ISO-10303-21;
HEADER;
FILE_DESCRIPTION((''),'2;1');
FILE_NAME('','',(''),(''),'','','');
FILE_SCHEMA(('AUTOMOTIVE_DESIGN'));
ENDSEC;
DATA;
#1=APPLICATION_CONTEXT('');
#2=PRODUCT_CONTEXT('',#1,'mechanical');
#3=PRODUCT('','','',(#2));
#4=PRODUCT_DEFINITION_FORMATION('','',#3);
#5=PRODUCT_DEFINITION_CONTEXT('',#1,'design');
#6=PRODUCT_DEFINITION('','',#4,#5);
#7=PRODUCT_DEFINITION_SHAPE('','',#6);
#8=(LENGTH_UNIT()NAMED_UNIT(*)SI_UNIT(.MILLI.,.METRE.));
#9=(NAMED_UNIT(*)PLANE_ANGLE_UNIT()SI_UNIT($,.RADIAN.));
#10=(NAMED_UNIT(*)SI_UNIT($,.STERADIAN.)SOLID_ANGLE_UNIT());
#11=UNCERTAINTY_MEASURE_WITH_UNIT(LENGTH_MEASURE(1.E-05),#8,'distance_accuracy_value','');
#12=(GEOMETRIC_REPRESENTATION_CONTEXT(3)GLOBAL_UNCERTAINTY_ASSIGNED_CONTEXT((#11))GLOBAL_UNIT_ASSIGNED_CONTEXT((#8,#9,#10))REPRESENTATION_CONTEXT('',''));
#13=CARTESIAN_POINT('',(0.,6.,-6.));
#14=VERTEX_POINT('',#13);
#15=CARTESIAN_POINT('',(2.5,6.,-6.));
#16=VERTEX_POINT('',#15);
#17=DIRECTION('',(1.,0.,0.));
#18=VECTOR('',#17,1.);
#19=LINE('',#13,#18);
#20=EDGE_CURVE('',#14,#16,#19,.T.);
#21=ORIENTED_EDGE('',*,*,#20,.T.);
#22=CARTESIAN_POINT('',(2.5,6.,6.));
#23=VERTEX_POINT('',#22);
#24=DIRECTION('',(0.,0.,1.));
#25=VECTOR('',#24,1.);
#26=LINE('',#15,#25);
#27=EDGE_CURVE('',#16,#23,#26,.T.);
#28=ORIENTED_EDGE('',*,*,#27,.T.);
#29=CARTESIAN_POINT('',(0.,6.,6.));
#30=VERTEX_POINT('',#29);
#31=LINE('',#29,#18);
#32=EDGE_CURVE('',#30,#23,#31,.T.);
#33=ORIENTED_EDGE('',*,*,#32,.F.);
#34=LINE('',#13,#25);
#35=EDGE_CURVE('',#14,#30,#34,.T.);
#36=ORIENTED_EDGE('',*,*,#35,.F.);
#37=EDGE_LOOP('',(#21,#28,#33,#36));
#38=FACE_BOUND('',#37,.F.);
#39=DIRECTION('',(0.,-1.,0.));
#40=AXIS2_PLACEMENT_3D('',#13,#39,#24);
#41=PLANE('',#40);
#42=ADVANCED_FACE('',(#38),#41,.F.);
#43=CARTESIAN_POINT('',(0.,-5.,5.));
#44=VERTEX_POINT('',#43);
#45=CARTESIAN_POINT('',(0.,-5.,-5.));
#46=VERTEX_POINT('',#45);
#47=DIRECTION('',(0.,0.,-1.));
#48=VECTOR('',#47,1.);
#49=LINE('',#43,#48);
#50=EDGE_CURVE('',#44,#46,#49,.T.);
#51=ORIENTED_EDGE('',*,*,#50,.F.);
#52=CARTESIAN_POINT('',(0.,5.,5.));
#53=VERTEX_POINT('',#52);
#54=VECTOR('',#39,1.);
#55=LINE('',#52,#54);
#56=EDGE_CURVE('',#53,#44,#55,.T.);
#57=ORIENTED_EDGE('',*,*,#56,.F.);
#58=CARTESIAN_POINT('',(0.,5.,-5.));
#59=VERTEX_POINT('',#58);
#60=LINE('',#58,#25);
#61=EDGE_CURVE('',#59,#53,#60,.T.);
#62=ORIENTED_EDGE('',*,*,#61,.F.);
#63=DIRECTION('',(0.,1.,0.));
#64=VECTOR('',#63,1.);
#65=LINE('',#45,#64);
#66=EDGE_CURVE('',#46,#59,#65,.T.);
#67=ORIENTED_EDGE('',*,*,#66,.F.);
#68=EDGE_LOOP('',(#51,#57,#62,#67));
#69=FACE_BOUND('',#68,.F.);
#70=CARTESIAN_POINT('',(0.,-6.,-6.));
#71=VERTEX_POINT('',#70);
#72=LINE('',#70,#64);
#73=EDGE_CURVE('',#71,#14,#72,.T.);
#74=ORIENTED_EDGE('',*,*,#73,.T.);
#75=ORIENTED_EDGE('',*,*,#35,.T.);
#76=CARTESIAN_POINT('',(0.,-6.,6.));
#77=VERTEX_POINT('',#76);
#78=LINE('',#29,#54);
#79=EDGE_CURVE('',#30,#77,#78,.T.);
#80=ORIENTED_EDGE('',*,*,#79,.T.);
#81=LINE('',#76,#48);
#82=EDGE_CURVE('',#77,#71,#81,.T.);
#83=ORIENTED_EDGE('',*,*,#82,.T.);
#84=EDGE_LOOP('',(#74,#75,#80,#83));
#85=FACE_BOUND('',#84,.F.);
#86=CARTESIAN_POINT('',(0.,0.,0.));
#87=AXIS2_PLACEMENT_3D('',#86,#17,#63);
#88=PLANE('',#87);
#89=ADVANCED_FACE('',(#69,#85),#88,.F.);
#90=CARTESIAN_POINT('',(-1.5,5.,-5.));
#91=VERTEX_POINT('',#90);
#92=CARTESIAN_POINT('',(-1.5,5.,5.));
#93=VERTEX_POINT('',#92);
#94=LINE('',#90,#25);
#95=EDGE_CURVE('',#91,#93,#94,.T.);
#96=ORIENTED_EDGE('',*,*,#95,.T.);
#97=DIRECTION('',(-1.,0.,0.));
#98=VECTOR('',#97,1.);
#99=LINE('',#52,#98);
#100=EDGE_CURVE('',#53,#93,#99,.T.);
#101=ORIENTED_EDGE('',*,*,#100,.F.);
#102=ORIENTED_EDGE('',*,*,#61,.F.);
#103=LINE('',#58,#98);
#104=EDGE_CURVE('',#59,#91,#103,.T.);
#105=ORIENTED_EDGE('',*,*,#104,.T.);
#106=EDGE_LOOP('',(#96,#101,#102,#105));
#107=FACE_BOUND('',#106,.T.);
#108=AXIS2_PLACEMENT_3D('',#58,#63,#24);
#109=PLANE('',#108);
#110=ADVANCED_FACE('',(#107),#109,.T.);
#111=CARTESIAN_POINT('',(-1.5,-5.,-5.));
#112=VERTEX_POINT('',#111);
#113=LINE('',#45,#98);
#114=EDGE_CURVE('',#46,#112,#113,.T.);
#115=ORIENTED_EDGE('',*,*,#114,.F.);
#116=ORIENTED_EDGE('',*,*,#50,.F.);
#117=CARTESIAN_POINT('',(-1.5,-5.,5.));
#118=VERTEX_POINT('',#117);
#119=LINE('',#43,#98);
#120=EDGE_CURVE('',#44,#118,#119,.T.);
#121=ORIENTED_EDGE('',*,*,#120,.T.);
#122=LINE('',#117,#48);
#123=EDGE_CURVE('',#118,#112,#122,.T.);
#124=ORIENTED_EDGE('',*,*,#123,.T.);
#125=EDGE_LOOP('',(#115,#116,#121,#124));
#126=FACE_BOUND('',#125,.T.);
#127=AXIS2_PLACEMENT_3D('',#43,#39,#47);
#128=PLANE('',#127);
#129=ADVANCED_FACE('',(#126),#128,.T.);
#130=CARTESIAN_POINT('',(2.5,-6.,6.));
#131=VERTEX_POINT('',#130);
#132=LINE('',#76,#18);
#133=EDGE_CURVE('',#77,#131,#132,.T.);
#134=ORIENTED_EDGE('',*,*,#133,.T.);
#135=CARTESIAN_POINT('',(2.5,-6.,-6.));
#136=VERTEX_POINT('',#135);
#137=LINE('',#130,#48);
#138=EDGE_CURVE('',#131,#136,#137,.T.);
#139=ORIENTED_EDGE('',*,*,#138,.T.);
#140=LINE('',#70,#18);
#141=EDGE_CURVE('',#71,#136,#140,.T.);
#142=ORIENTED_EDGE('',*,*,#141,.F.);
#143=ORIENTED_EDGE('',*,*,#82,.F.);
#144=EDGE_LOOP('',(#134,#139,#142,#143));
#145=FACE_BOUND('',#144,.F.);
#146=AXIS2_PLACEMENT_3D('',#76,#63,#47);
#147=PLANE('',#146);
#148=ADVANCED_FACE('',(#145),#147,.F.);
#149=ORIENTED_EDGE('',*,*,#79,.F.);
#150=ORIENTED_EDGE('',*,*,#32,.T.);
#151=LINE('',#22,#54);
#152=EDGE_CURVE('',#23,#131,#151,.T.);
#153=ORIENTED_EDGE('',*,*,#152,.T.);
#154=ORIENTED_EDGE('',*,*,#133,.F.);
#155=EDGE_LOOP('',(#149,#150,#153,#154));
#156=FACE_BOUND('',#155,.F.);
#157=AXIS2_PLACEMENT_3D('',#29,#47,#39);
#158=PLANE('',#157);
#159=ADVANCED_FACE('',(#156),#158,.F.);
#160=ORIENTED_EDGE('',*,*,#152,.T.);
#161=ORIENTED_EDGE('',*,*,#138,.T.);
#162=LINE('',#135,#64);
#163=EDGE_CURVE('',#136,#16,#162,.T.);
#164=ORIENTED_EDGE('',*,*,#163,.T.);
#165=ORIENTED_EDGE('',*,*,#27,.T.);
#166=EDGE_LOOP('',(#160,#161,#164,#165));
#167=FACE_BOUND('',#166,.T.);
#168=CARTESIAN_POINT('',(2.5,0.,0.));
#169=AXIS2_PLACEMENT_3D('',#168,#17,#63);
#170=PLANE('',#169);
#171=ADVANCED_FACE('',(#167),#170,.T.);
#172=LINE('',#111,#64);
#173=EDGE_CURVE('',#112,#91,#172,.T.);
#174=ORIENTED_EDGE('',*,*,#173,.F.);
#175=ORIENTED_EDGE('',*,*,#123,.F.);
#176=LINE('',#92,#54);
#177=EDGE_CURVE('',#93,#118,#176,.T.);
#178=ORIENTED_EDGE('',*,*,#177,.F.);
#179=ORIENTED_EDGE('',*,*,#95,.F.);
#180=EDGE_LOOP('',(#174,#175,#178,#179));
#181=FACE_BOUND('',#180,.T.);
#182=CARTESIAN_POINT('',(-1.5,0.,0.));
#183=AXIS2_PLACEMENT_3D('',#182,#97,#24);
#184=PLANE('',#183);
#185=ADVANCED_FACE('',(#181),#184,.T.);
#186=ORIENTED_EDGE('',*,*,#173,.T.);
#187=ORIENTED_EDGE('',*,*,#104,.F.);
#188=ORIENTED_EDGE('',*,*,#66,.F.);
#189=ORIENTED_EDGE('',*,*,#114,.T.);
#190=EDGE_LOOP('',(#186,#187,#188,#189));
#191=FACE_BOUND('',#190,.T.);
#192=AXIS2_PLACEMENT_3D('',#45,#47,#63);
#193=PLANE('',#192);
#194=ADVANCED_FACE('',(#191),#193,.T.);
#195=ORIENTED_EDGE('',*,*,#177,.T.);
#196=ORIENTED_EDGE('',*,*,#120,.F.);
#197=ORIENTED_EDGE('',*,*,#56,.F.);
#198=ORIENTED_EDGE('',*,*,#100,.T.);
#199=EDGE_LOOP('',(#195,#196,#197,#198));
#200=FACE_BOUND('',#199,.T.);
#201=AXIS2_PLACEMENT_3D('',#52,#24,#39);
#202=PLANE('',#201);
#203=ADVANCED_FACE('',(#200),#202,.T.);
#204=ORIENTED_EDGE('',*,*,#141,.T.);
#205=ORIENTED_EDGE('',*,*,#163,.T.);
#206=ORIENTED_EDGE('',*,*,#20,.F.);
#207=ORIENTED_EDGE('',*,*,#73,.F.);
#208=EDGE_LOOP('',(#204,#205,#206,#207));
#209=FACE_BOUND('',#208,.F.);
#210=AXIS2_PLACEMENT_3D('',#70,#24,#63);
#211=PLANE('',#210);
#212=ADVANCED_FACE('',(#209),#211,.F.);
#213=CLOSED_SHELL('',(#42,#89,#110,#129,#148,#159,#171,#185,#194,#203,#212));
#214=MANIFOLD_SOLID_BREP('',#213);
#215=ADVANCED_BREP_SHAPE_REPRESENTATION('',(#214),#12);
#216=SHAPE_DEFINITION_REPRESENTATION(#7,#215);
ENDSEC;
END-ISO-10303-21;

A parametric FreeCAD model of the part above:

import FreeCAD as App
import Part
import Sketcher
from FreeCAD import Vector


def add_polygon(sketch, points):
    """Adds a closed chain of lines whose ends are joined by coincident constraints."""
    first, n = sketch.GeometryCount, len(points)
    for a, b in zip(points, points[1:] + points[:1]):
        sketch.addGeometry(Part.LineSegment(App.Vector(*a, 0), App.Vector(*b, 0)), False)
    for i in range(n):
        sketch.addConstraint(Sketcher.Constraint("Coincident", first + i, 2, first + (i + 1) % n, 1))

doc = App.newDocument("Part")
body = doc.addObject("PartDesign::Body", "Body")

sketch1 = doc.addObject("Sketcher::SketchObject", "Sketch")
body.addObject(sketch1)
sketch1.AttachmentSupport = (doc.YZ_Plane, [""])
sketch1.MapMode = "FlatFace"
add_polygon(sketch1, [(-6, 6), (-6, -6), (6, -6), (6, 6)])
sketch1.addConstraint(Sketcher.Constraint("Vertical", 0))
sketch1.addConstraint(Sketcher.Constraint("Horizontal", 1))
sketch1.addConstraint(Sketcher.Constraint("Vertical", 2))
sketch1.addConstraint(Sketcher.Constraint("Horizontal", 3))
sketch1.addConstraint(Sketcher.Constraint("Symmetric", 0, 2, 2, 2, -1, 1))
sketch1.addConstraint(Sketcher.Constraint("Equal", 3, 0))
sketch1.addConstraint(Sketcher.Constraint("DistanceX", 1, 1, 1, 2, 12.0))
pad1 = doc.addObject("PartDesign::Pad", "Pad")
body.addObject(pad1)
pad1.Profile = sketch1
pad1.Length = 2.5

sketch2 = doc.addObject("Sketcher::SketchObject", "Sketch001")
body.addObject(sketch2)
sketch2.AttachmentSupport = (doc.YZ_Plane, [""])
sketch2.MapMode = "FlatFace"
add_polygon(sketch2, [(-5, -5), (-5, 5), (5, 5), (5, -5)])
sketch2.addConstraint(Sketcher.Constraint("Vertical", 0))
sketch2.addConstraint(Sketcher.Constraint("Horizontal", 1))
sketch2.addConstraint(Sketcher.Constraint("Vertical", 2))
sketch2.addConstraint(Sketcher.Constraint("Horizontal", 3))
sketch2.addConstraint(Sketcher.Constraint("Symmetric", 0, 2, 2, 2, -1, 1))
sketch2.addConstraint(Sketcher.Constraint("Equal", 3, 0))
sketch2.addConstraint(Sketcher.Constraint("DistanceX", 1, 1, 1, 2, 10.0))
pad2 = doc.addObject("PartDesign::Pad", "Pad001")
body.addObject(pad2)
pad2.Profile = sketch2
pad2.Length = 1.5
pad2.Reversed = True

doc.recompute()
